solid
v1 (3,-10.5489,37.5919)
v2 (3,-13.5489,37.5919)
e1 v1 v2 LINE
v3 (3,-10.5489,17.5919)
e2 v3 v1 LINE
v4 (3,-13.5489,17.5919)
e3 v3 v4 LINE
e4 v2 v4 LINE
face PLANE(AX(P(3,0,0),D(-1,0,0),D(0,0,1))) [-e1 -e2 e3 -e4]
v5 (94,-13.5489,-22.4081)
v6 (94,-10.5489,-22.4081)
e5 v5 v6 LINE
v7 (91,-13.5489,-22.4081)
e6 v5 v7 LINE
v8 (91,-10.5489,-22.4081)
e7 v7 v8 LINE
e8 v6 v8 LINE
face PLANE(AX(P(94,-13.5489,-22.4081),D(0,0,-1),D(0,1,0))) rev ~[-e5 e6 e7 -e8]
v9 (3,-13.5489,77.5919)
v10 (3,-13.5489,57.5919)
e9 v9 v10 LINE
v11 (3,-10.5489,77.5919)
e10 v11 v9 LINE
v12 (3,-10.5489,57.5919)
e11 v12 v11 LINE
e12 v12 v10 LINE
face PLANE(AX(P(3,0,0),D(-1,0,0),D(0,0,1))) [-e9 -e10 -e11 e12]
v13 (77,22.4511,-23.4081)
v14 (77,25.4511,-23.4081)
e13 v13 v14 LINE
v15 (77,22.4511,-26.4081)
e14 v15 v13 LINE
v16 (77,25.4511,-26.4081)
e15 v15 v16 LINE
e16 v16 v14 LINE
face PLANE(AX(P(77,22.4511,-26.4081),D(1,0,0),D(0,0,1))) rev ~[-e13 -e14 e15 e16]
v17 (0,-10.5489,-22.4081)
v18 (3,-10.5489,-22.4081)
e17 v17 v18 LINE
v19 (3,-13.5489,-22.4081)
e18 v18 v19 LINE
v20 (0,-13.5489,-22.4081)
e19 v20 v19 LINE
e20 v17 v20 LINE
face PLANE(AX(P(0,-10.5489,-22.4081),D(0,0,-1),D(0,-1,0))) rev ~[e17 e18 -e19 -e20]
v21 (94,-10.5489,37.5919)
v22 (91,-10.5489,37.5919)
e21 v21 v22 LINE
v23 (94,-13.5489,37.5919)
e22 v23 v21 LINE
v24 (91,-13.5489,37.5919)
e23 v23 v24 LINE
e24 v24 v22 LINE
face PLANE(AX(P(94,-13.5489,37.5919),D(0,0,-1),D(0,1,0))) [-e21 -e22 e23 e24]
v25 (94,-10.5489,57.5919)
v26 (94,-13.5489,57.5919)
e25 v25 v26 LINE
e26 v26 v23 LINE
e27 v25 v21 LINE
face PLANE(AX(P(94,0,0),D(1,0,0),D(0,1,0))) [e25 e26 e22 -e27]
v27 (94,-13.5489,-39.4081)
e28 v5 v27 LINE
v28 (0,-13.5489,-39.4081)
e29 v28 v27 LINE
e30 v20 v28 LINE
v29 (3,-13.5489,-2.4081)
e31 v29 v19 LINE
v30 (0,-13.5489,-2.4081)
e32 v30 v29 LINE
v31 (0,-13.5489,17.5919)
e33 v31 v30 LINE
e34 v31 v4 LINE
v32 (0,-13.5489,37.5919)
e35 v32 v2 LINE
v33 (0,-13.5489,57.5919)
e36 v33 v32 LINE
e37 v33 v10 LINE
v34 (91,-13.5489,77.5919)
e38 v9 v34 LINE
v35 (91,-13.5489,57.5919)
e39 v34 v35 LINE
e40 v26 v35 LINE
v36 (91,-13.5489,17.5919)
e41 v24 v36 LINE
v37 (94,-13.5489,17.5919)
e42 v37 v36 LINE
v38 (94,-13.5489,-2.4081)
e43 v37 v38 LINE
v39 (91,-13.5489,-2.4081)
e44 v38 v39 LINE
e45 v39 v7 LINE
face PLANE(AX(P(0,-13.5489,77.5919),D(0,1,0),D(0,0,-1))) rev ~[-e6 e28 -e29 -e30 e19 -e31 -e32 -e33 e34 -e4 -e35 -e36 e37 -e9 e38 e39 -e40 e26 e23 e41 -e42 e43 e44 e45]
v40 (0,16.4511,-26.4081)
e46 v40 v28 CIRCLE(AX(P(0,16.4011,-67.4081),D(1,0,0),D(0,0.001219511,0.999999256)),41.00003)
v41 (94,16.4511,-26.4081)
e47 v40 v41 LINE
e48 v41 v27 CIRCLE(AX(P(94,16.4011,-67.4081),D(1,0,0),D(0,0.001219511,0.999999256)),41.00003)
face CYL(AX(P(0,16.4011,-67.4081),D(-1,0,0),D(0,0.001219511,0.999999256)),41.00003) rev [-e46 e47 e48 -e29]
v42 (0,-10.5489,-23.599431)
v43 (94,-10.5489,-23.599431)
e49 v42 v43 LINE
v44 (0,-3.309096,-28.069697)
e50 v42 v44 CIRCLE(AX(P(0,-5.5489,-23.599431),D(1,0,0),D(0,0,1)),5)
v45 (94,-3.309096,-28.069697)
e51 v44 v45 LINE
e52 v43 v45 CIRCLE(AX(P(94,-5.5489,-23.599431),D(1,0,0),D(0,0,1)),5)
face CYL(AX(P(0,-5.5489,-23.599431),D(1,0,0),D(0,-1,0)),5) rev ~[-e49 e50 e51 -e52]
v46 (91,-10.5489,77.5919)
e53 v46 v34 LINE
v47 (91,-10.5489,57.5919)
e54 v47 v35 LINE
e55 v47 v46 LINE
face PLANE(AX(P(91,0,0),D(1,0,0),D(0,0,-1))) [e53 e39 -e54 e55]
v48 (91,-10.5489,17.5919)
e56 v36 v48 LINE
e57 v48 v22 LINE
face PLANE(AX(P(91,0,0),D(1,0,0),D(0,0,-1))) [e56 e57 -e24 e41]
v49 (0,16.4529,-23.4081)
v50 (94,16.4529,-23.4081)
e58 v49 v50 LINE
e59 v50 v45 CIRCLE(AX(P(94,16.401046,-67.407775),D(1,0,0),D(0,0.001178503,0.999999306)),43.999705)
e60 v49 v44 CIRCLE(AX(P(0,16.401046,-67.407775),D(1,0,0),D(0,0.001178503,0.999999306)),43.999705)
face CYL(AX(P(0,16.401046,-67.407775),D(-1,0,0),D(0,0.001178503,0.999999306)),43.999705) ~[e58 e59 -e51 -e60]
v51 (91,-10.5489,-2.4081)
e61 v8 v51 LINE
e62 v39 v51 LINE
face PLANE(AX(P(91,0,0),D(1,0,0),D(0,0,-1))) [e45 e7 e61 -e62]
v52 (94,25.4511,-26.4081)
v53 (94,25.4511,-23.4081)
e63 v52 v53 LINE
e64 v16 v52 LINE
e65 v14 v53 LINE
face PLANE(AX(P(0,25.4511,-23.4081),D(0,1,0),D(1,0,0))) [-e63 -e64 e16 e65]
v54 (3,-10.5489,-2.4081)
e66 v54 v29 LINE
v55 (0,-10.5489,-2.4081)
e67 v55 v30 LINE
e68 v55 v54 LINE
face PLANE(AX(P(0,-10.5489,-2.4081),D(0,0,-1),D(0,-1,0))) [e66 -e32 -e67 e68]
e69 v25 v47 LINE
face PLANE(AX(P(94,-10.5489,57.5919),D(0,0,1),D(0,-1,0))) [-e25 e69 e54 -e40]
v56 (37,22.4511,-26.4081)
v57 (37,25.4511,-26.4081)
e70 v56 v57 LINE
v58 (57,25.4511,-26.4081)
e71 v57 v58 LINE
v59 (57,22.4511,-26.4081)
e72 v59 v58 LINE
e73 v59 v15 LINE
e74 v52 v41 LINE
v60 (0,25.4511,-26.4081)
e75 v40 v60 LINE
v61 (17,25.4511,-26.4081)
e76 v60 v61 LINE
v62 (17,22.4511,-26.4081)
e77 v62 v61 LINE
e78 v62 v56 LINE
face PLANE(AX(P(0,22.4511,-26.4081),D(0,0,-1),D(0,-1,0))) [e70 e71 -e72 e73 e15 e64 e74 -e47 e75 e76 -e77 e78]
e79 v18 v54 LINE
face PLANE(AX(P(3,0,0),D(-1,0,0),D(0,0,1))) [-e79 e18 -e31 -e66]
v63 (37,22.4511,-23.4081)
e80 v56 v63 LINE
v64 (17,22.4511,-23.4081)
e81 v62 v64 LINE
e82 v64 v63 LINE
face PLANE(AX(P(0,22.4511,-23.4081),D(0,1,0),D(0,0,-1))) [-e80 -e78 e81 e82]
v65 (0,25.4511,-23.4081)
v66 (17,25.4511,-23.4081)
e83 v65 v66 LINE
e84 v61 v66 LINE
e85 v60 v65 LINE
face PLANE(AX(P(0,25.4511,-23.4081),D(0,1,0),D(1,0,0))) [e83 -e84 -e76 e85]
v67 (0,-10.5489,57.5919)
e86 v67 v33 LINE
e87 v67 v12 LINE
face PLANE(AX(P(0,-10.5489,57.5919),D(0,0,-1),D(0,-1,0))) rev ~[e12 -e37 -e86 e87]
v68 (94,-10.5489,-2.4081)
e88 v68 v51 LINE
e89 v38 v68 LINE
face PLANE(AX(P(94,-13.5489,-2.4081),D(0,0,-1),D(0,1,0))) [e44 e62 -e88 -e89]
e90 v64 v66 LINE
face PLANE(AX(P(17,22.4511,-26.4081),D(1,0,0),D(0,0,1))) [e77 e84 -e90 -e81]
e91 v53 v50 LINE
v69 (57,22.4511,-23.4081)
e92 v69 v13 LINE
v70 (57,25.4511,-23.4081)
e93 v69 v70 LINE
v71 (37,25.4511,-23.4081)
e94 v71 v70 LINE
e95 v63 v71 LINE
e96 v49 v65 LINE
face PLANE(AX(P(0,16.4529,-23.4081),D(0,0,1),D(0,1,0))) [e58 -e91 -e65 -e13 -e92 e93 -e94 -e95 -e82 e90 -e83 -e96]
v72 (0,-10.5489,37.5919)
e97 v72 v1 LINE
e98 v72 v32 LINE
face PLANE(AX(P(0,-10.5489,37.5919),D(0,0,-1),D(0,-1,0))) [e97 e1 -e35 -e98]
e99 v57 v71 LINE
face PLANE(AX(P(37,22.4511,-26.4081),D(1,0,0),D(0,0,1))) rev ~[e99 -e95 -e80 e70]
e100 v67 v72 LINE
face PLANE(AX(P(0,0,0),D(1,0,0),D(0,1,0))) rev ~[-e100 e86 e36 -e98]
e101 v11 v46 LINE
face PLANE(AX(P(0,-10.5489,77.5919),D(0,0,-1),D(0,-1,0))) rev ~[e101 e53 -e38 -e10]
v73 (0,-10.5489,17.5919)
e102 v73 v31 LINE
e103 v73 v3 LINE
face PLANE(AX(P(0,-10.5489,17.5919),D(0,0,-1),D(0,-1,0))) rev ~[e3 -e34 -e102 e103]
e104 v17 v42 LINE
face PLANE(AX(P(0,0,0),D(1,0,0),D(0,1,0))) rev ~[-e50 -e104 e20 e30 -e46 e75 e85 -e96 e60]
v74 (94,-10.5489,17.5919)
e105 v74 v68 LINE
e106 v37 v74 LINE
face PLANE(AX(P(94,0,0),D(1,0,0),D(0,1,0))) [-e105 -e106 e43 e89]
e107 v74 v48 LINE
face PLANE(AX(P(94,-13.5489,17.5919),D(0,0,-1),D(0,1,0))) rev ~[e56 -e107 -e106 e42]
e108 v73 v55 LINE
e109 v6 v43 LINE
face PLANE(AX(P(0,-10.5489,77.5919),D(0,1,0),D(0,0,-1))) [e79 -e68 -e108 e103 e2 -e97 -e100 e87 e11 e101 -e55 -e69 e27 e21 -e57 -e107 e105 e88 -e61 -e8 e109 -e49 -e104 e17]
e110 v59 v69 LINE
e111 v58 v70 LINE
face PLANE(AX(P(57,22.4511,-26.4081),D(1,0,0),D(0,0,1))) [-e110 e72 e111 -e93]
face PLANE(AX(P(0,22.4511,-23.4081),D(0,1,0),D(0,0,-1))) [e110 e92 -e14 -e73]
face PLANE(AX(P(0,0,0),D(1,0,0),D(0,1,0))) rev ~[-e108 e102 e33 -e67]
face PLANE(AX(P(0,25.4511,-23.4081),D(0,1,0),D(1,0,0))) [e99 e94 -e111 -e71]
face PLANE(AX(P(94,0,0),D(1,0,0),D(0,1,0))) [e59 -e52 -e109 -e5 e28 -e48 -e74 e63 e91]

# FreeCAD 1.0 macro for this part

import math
import FreeCAD as App
import Part
import Sketcher

V = App.Vector


def edges_at(feature, points):
    """Names of the edges that pass closest to the given points."""
    edges = feature.Shape.Edges
    near = lambda p: min(range(len(edges)), key=lambda i: edges[i].distToShape(Part.Vertex(*p))[0])
    return sorted({f"Edge{near(p) + 1}" for p in points})

doc = App.newDocument("Part")
body = doc.addObject("PartDesign::Body", "Body")

# Sketch on YZ plane
sketch1 = body.newObject("Sketcher::SketchObject", "Sketch")
sketch1.AttachmentSupport = (doc.getObject("YZ_Plane"), [""])
sketch1.MapMode = "FlatFace"
sketch1.addGeometry([
    Part.ArcOfCircle(Part.Circle(V(16.4, -67.4, 0), V(0, 0, 1), 41), math.radians(90), math.radians(137)),  # 0
    Part.LineSegment(V(16.5, -26.4, 0), V(22.5, -26.4, 0)),  # 1
    Part.LineSegment(V(22.5, -26.4, 0), V(22.5, -23.4, 0)),  # 2
    Part.LineSegment(V(22.5, -23.4, 0), V(16.5, -23.4, 0)),  # 3
    Part.ArcOfCircle(Part.Circle(V(16.4, -67.4, 0), V(0, 0, 1), 44), math.radians(90), math.radians(128)),  # 4
    Part.LineSegment(V(-10.5, -32.6, 0), V(-10.5, 77.6, 0)),  # 5
    Part.LineSegment(V(-10.5, 77.6, 0), V(-13.5, 77.6, 0)),  # 6
    Part.LineSegment(V(-13.5, 77.6, 0), V(-13.5, -39.4, 0)),  # 7
], False)
sketch1.addConstraint([
    Sketcher.Constraint("Coincident", 0, 1, 1, 1),
    Sketcher.Constraint("Coincident", 1, 2, 2, 1),
    Sketcher.Constraint("Coincident", 2, 2, 3, 1),
    Sketcher.Constraint("Coincident", 3, 2, 4, 1),
    Sketcher.Constraint("Coincident", 4, 2, 5, 1),
    Sketcher.Constraint("Coincident", 5, 2, 6, 1),
    Sketcher.Constraint("Coincident", 6, 2, 7, 1),
    Sketcher.Constraint("Coincident", 7, 2, 0, 2),
    Sketcher.Constraint("Horizontal", 1),
    Sketcher.Constraint("Vertical", 2),
    Sketcher.Constraint("Horizontal", 3),
    Sketcher.Constraint("Vertical", 5),
    Sketcher.Constraint("Horizontal", 6),
    Sketcher.Constraint("Vertical", 7),
    Sketcher.Constraint("Coincident", 4, 3, 0, 3),
    Sketcher.Constraint("Equal", 6, 2),
    Sketcher.Constraint("DistanceX", 6, 2, 6, 1, 3.0),
    Sketcher.Constraint("Radius", 0, 41.0),
    Sketcher.Constraint("DistanceX", 1, 1, 1, 2, 6.0),
    Sketcher.Constraint("DistanceY", 7, 2, 7, 1, 117.0),
    Sketcher.Constraint("DistanceX", 4, 2, 0, 1, 27.0),
    Sketcher.Constraint("DistanceY", 3, 2, 5, 2, 101.0),
    Sketcher.Constraint("DistanceX", 3, 2, 3, 1, 5.9982),
    Sketcher.Constraint("DistanceX", -1, 1, 0, 3, 16.401),
    Sketcher.Constraint("DistanceY", 0, 3, -1, 1, 67.408),
])
pad1 = body.newObject("PartDesign::Pad", "Pad")
pad1.Profile = sketch1
pad1.Length = 94

# Sketch on YZ plane
sketch2 = body.newObject("Sketcher::SketchObject", "Sketch001")
sketch2.AttachmentSupport = (doc.getObject("YZ_Plane"), [""])
sketch2.MapMode = "FlatFace"
sketch2.addGeometry([
    Part.LineSegment(V(-10.5, -2.4, 0), V(-10.5, -22.4, 0)),  # 0
    Part.LineSegment(V(-10.5, -22.4, 0), V(-13.5, -22.4, 0)),  # 1
    Part.LineSegment(V(-13.5, -22.4, 0), V(-13.5, -2.4, 0)),  # 2
    Part.LineSegment(V(-13.5, -2.4, 0), V(-10.5, -2.4, 0)),  # 3
    Part.LineSegment(V(-10.5, 37.6, 0), V(-10.5, 17.6, 0)),  # 4
    Part.LineSegment(V(-10.5, 17.6, 0), V(-13.5, 17.6, 0)),  # 5
    Part.LineSegment(V(-13.5, 17.6, 0), V(-13.5, 37.6, 0)),  # 6
    Part.LineSegment(V(-13.5, 37.6, 0), V(-10.5, 37.6, 0)),  # 7
    Part.LineSegment(V(-10.5, 77.6, 0), V(-10.5, 57.6, 0)),  # 8
    Part.LineSegment(V(-10.5, 57.6, 0), V(-13.5, 57.6, 0)),  # 9
    Part.LineSegment(V(-13.5, 57.6, 0), V(-13.5, 77.6, 0)),  # 10
    Part.LineSegment(V(-13.5, 77.6, 0), V(-10.5, 77.6, 0)),  # 11
], False)
sketch2.addConstraint([
    Sketcher.Constraint("Coincident", 0, 2, 1, 1),
    Sketcher.Constraint("Coincident", 1, 2, 2, 1),
    Sketcher.Constraint("Coincident", 2, 2, 3, 1),
    Sketcher.Constraint("Coincident", 3, 2, 0, 1),
    Sketcher.Constraint("Coincident", 4, 2, 5, 1),
    Sketcher.Constraint("Coincident", 5, 2, 6, 1),
    Sketcher.Constraint("Coincident", 6, 2, 7, 1),
    Sketcher.Constraint("Coincident", 7, 2, 4, 1),
    Sketcher.Constraint("Coincident", 8, 2, 9, 1),
    Sketcher.Constraint("Coincident", 9, 2, 10, 1),
    Sketcher.Constraint("Coincident", 10, 2, 11, 1),
    Sketcher.Constraint("Coincident", 11, 2, 8, 1),
    Sketcher.Constraint("Vertical", 0),
    Sketcher.Constraint("Horizontal", 1),
    Sketcher.Constraint("Vertical", 2),
    Sketcher.Constraint("Horizontal", 3),
    Sketcher.Constraint("Vertical", 4),
    Sketcher.Constraint("Horizontal", 5),
    Sketcher.Constraint("Vertical", 6),
    Sketcher.Constraint("Horizontal", 7),
    Sketcher.Constraint("Vertical", 8),
    Sketcher.Constraint("Horizontal", 9),
    Sketcher.Constraint("Vertical", 10),
    Sketcher.Constraint("Horizontal", 11),
    Sketcher.Constraint("Vertical", 3, 2, 4, 2),
    Sketcher.Constraint("Vertical", 2, 2, 5, 2),
    Sketcher.Constraint("Vertical", 7, 2, 8, 2),
    Sketcher.Constraint("Vertical", 6, 2, 9, 2),
    Sketcher.Constraint("Equal", 2, 4),
    Sketcher.Constraint("Equal", 6, 8),
    Sketcher.Constraint("DistanceY", 0, 2, 0, 1, 20.0),
    Sketcher.Constraint("DistanceY", 3, 2, 4, 2, 20.0),
    Sketcher.Constraint("DistanceY", 7, 2, 8, 2, 20.0),
    Sketcher.Constraint("DistanceX", 1, 2, 1, 1, 3.0),
    Sketcher.Constraint("DistanceX", 0, 2, -1, 1, 10.549),
    Sketcher.Constraint("DistanceY", 0, 2, -1, 1, 22.408),
])
pocket1 = body.newObject("PartDesign::Pocket", "Pocket")
pocket1.Profile = sketch2
pocket1.Length = 3
pocket1.Reversed = True

# Sketch on YZ plane
sketch3 = body.newObject("Sketcher::SketchObject", "Sketch002")
sketch3.AttachmentSupport = (doc.getObject("YZ_Plane"), [""])
sketch3.MapMode = "FlatFace"
sketch3.AttachmentOffset = App.Placement(V(0, 0, 94), App.Rotation())
sketch3.addGeometry([
    Part.LineSegment(V(-13.5, -22.4, 0), V(-10.5, -22.4, 0)),  # 0
    Part.LineSegment(V(-10.5, -22.4, 0), V(-10.5, -2.4, 0)),  # 1
    Part.LineSegment(V(-10.5, -2.4, 0), V(-13.5, -2.4, 0)),  # 2
    Part.LineSegment(V(-13.5, -2.4, 0), V(-13.5, -22.4, 0)),  # 3
    Part.LineSegment(V(-13.5, 17.6, 0), V(-10.5, 17.6, 0)),  # 4
    Part.LineSegment(V(-10.5, 17.6, 0), V(-10.5, 37.6, 0)),  # 5
    Part.LineSegment(V(-10.5, 37.6, 0), V(-13.5, 37.6, 0)),  # 6
    Part.LineSegment(V(-13.5, 37.6, 0), V(-13.5, 17.6, 0)),  # 7
    Part.LineSegment(V(-13.5, 57.6, 0), V(-10.5, 57.6, 0)),  # 8
    Part.LineSegment(V(-10.5, 57.6, 0), V(-10.5, 77.6, 0)),  # 9
    Part.LineSegment(V(-10.5, 77.6, 0), V(-13.5, 77.6, 0)),  # 10
    Part.LineSegment(V(-13.5, 77.6, 0), V(-13.5, 57.6, 0)),  # 11
], False)
sketch3.addConstraint([
    Sketcher.Constraint("Coincident", 0, 2, 1, 1),
    Sketcher.Constraint("Coincident", 1, 2, 2, 1),
    Sketcher.Constraint("Coincident", 2, 2, 3, 1),
    Sketcher.Constraint("Coincident", 3, 2, 0, 1),
    Sketcher.Constraint("Coincident", 4, 2, 5, 1),
    Sketcher.Constraint("Coincident", 5, 2, 6, 1),
    Sketcher.Constraint("Coincident", 6, 2, 7, 1),
    Sketcher.Constraint("Coincident", 7, 2, 4, 1),
    Sketcher.Constraint("Coincident", 8, 2, 9, 1),
    Sketcher.Constraint("Coincident", 9, 2, 10, 1),
    Sketcher.Constraint("Coincident", 10, 2, 11, 1),
    Sketcher.Constraint("Coincident", 11, 2, 8, 1),
    Sketcher.Constraint("Horizontal", 0),
    Sketcher.Constraint("Vertical", 1),
    Sketcher.Constraint("Horizontal", 2),
    Sketcher.Constraint("Vertical", 3),
    Sketcher.Constraint("Horizontal", 4),
    Sketcher.Constraint("Vertical", 5),
    Sketcher.Constraint("Horizontal", 6),
    Sketcher.Constraint("Vertical", 7),
    Sketcher.Constraint("Horizontal", 8),
    Sketcher.Constraint("Vertical", 9),
    Sketcher.Constraint("Horizontal", 10),
    Sketcher.Constraint("Vertical", 11),
    Sketcher.Constraint("Vertical", 1, 2, 4, 2),
    Sketcher.Constraint("Vertical", 3, 2, 6, 2),
    Sketcher.Constraint("Vertical", 5, 2, 8, 2),
    Sketcher.Constraint("Vertical", 7, 2, 10, 2),
    Sketcher.Constraint("Equal", 3, 5),
    Sketcher.Constraint("Equal", 7, 9),
    Sketcher.Constraint("DistanceY", 1, 1, 1, 2, 20.0),
    Sketcher.Constraint("DistanceY", 1, 2, 4, 2, 20.0),
    Sketcher.Constraint("DistanceY", 5, 2, 8, 2, 20.0),
    Sketcher.Constraint("DistanceX", 0, 1, 0, 2, 3.0),
    Sketcher.Constraint("DistanceX", 0, 2, -1, 1, 10.549),
    Sketcher.Constraint("DistanceY", 0, 2, -1, 1, 22.408),
])
pocket2 = body.newObject("PartDesign::Pocket", "Pocket001")
pocket2.Profile = sketch3
pocket2.Length = 3

# Sketch on XZ plane
sketch4 = body.newObject("Sketcher::SketchObject", "Sketch003")
sketch4.AttachmentSupport = (doc.getObject("XZ_Plane"), [""])
sketch4.MapMode = "FlatFace"
sketch4.AttachmentOffset = App.Placement(V(0, 0, -22.4511), App.Rotation())
sketch4.addGeometry([
    Part.LineSegment(V(17, -26.4, 0), V(0, -26.4, 0)),  # 0
    Part.LineSegment(V(0, -26.4, 0), V(0, -23.4, 0)),  # 1
    Part.LineSegment(V(0, -23.4, 0), V(17, -23.4, 0)),  # 2
    Part.LineSegment(V(17, -23.4, 0), V(17, -26.4, 0)),  # 3
    Part.LineSegment(V(37, -26.4, 0), V(37, -23.4, 0)),  # 4
    Part.LineSegment(V(37, -23.4, 0), V(57, -23.4, 0)),  # 5
    Part.LineSegment(V(57, -23.4, 0), V(57, -26.4, 0)),  # 6
    Part.LineSegment(V(57, -26.4, 0), V(37, -26.4, 0)),  # 7
    Part.LineSegment(V(77, -26.4, 0), V(77, -23.4, 0)),  # 8
    Part.LineSegment(V(77, -23.4, 0), V(94, -23.4, 0)),  # 9
    Part.LineSegment(V(94, -23.4, 0), V(94, -26.4, 0)),  # 10
    Part.LineSegment(V(94, -26.4, 0), V(77, -26.4, 0)),  # 11
], False)
sketch4.addConstraint([
    Sketcher.Constraint("Coincident", 0, 2, 1, 1),
    Sketcher.Constraint("Coincident", 1, 2, 2, 1),
    Sketcher.Constraint("Coincident", 2, 2, 3, 1),
    Sketcher.Constraint("Coincident", 3, 2, 0, 1),
    Sketcher.Constraint("Coincident", 4, 2, 5, 1),
    Sketcher.Constraint("Coincident", 5, 2, 6, 1),
    Sketcher.Constraint("Coincident", 6, 2, 7, 1),
    Sketcher.Constraint("Coincident", 7, 2, 4, 1),
    Sketcher.Constraint("Coincident", 8, 2, 9, 1),
    Sketcher.Constraint("Coincident", 9, 2, 10, 1),
    Sketcher.Constraint("Coincident", 10, 2, 11, 1),
    Sketcher.Constraint("Coincident", 11, 2, 8, 1),
    Sketcher.Constraint("Horizontal", 0),
    Sketcher.Constraint("Vertical", 1),
    Sketcher.Constraint("Horizontal", 2),
    Sketcher.Constraint("Vertical", 3),
    Sketcher.Constraint("Vertical", 4),
    Sketcher.Constraint("Horizontal", 5),
    Sketcher.Constraint("Vertical", 6),
    Sketcher.Constraint("Horizontal", 7),
    Sketcher.Constraint("Vertical", 8),
    Sketcher.Constraint("Horizontal", 9),
    Sketcher.Constraint("Vertical", 10),
    Sketcher.Constraint("Horizontal", 11),
    Sketcher.Constraint("PointOnObject", 0, 2, -2),
    Sketcher.Constraint("Horizontal", 2, 2, 4, 2),
    Sketcher.Constraint("Horizontal", 3, 2, 6, 2),
    Sketcher.Constraint("Horizontal", 5, 2, 8, 2),
    Sketcher.Constraint("Horizontal", 7, 2, 10, 2),
    Sketcher.Constraint("Equal", 2, 9),
    Sketcher.Constraint("DistanceX", 0, 2, 0, 1, 17.0),
    Sketcher.Constraint("DistanceX", 5, 1, 5, 2, 20.0),
    Sketcher.Constraint("DistanceX", 2, 2, 4, 2, 20.0),
    Sketcher.Constraint("DistanceX", 5, 2, 8, 2, 20.0),
    Sketcher.Constraint("DistanceY", 1, 1, 1, 2, 3.0),
    Sketcher.Constraint("DistanceY", 0, 2, -1, 1, 26.408),
])
pad2 = body.newObject("PartDesign::Pad", "Pad001")
pad2.Profile = sketch4
pad2.Length = 3
pad2.Reversed = True
doc.recompute()

fillet = body.newObject("PartDesign::Fillet", "Fillet")
fillet.Base = (pad2, edges_at(pad2, [(47, -10.549, -32.627)]))
fillet.Radius = 5

doc.recompute()
